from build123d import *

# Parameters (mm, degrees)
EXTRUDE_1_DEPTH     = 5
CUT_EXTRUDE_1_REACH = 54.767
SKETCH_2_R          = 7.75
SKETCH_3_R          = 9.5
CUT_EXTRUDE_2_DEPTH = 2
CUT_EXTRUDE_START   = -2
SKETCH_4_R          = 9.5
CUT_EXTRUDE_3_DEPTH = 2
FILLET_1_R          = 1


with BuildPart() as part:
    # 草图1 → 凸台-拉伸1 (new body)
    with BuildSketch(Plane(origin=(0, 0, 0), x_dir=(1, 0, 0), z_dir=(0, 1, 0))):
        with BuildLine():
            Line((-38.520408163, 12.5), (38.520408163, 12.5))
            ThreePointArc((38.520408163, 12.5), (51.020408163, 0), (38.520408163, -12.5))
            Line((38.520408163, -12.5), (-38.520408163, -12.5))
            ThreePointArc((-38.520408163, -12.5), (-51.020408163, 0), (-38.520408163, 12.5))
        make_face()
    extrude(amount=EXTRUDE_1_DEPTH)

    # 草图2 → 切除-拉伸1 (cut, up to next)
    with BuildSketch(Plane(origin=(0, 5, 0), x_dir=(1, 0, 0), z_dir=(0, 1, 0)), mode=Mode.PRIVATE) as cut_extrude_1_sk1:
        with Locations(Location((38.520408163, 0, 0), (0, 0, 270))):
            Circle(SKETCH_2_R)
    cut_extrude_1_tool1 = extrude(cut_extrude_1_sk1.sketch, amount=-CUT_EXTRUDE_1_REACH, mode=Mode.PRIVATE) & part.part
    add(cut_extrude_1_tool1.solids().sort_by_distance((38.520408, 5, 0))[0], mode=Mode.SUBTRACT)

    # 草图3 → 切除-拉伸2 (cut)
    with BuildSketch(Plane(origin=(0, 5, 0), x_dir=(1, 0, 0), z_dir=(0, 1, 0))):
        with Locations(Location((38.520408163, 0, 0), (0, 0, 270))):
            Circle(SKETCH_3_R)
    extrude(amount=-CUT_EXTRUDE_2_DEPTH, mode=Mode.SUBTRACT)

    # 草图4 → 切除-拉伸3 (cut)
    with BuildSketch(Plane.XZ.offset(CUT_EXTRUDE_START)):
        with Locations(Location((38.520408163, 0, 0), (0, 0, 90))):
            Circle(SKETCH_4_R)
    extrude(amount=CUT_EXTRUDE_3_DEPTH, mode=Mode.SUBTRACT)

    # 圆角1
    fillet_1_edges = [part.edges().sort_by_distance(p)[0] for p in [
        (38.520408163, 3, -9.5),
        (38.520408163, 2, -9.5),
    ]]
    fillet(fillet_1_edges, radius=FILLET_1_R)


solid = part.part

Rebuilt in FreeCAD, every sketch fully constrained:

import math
import FreeCAD as App
import Part
import Sketcher
from FreeCAD import Vector


def edges_at(feature, points):
    """Names of the edges that pass closest to the given points."""
    edges = feature.Shape.Edges
    near = lambda p: min(range(len(edges)), key=lambda i: edges[i].distToShape(Part.Vertex(*p))[0])
    return sorted({f"Edge{near(p) + 1}" for p in points})

doc = App.newDocument("Part")
body = doc.addObject("PartDesign::Body", "Body")

# Sketch on XZ plane
sketch1 = doc.addObject("Sketcher::SketchObject", "Sketch")
body.addObject(sketch1)
sketch1.AttachmentSupport = (doc.XZ_Plane, [""])
sketch1.MapMode = "FlatFace"
sketch1.addGeometry([
    Part.LineSegment(Vector(39, -12, 0), Vector(-39, -12, 0)),
    Part.ArcOfCircle(Part.Circle(Vector(-39, 0, 0), Vector(0, 0, 1), 12), math.radians(90), math.radians(270)),
    Part.LineSegment(Vector(-39, 12, 0), Vector(39, 12, 0)),
    Part.ArcOfCircle(Part.Circle(Vector(39, 0, 0), Vector(0, 0, 1), 12), math.radians(-90), math.radians(90)),
], False)
sketch1.addConstraint([
    Sketcher.Constraint("Tangent", 0, 2, 1, 2),
    Sketcher.Constraint("Tangent", 1, 1, 2, 1),
    Sketcher.Constraint("Tangent", 2, 2, 3, 2),
    Sketcher.Constraint("Tangent", 3, 1, 0, 1),
    Sketcher.Constraint("Horizontal", 0),
    Sketcher.Constraint("Horizontal", 2),
    Sketcher.Constraint("Symmetric", 1, 3, 3, 3, -1, 1),
    Sketcher.Constraint("Radius", 1, 12.5),
    Sketcher.Constraint("DistanceX", 0, 2, 0, 1, 77.040816),
])
pad1 = doc.addObject("PartDesign::Pad", "Pad")
body.addObject(pad1)
pad1.Profile = sketch1
pad1.Length = 5
pad1.Reversed = True

# Sketch on XZ plane
sketch2 = doc.addObject("Sketcher::SketchObject", "Sketch001")
body.addObject(sketch2)
sketch2.AttachmentSupport = (doc.XZ_Plane, [""])
sketch2.MapMode = "FlatFace"
sketch2.AttachmentOffset = App.Placement(Vector(0, 0, -5), App.Rotation())
sketch2.addGeometry(Part.Circle(Vector(39, 0, 0), Vector(0, 0, 1), 8), False)
sketch2.addConstraint([
    Sketcher.Constraint("PointOnObject", 0, 3, -1),
    Sketcher.Constraint("Diameter", 0, 15.5),
    Sketcher.Constraint("DistanceX", -1, 1, 0, 3, 38.520408),
])
pocket1 = doc.addObject("PartDesign::Pocket", "Pocket")
body.addObject(pocket1)
pocket1.Profile = sketch2
pocket1.Type = "UpToFirst"
pocket1.Reversed = True

# Sketch on XZ plane
sketch3 = doc.addObject("Sketcher::SketchObject", "Sketch002")
body.addObject(sketch3)
sketch3.AttachmentSupport = (doc.XZ_Plane, [""])
sketch3.MapMode = "FlatFace"
sketch3.AttachmentOffset = App.Placement(Vector(0, 0, -5), App.Rotation())
sketch3.addGeometry(Part.Circle(Vector(39, 0, 0), Vector(0, 0, 1), 10), False)
sketch3.addConstraint([
    Sketcher.Constraint("PointOnObject", 0, 3, -1),
    Sketcher.Constraint("Diameter", 0, 19.0),
    Sketcher.Constraint("DistanceX", -1, 1, 0, 3, 38.520408),
])
pocket2 = doc.addObject("PartDesign::Pocket", "Pocket001")
body.addObject(pocket2)
pocket2.Profile = sketch3
pocket2.Length = 2
pocket2.Reversed = True

# Sketch on XZ plane
sketch4 = doc.addObject("Sketcher::SketchObject", "Sketch003")
body.addObject(sketch4)
sketch4.AttachmentSupport = (doc.XZ_Plane, [""])
sketch4.MapMode = "FlatFace"
sketch4.AttachmentOffset = App.Placement(Vector(0, 0, -2), App.Rotation())
sketch4.addGeometry(Part.Circle(Vector(39, 0, 0), Vector(0, 0, 1), 10), False)
sketch4.addConstraint([
    Sketcher.Constraint("PointOnObject", 0, 3, -1),
    Sketcher.Constraint("Diameter", 0, 19.0),
    Sketcher.Constraint("DistanceX", -1, 1, 0, 3, 38.520408),
])
pocket3 = doc.addObject("PartDesign::Pocket", "Pocket002")
body.addObject(pocket3)
pocket3.Profile = sketch4
pocket3.Length = 2
pocket3.Reversed = True
doc.recompute()

fillet = doc.addObject("PartDesign::Fillet", "Fillet")
body.addObject(fillet)
fillet.Base = (pocket3, edges_at(pocket3, [(38.52, 3, -9.5), (38.52, 2, -9.5)]))
fillet.Radius = 1

doc.recompute()
